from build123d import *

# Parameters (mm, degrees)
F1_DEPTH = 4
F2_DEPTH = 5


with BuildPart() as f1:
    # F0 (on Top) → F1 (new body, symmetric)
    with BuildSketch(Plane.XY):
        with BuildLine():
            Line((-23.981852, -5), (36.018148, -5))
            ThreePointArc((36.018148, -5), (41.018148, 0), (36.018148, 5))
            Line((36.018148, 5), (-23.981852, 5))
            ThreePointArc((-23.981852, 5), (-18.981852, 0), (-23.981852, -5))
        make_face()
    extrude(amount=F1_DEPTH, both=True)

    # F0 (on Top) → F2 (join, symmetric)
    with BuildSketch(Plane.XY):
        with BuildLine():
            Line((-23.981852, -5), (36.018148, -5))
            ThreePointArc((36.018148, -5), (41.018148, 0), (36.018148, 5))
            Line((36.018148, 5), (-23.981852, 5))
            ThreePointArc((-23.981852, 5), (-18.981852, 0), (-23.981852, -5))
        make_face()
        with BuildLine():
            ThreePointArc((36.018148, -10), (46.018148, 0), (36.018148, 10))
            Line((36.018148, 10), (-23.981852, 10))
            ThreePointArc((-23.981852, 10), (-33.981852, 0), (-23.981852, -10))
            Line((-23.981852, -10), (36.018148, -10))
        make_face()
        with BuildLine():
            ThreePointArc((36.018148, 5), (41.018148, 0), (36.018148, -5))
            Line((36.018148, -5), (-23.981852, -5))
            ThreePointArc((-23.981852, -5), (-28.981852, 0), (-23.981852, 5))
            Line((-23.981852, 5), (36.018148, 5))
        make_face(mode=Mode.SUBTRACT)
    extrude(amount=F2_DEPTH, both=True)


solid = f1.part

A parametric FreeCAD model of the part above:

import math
import FreeCAD as App
import Part
import Sketcher

doc = App.newDocument("Part")
body = doc.addObject("PartDesign::Body", "Body")

# Sketch on XY plane
sketch1 = body.newObject("Sketcher::SketchObject", "Sketch")
sketch1.AttachmentSupport = (doc.getObject("XY_Plane"), [""])
sketch1.MapMode = "FlatFace"
sketch1.addGeometry([
    Part.LineSegment(App.Vector(-24, -5, 0), App.Vector(36, -5, 0)),
    Part.ArcOfCircle(Part.Circle(App.Vector(36, 0, 0), App.Vector(0, 0, 1), 5), math.radians(-90), math.radians(90)),
    Part.LineSegment(App.Vector(36, 5, 0), App.Vector(-24, 5, 0)),
    Part.ArcOfCircle(Part.Circle(App.Vector(-24, 0, 0), App.Vector(0, 0, 1), 5), math.radians(-90), math.radians(90)),
], False)
sketch1.addConstraint([
    Sketcher.Constraint("Tangent", 0, 2, 1, 1),
    Sketcher.Constraint("Tangent", 1, 2, 2, 1),
    Sketcher.Constraint("Tangent", 2, 2, 3, 2),
    Sketcher.Constraint("Tangent", 3, 1, 0, 1),
    Sketcher.Constraint("Horizontal", 0),
    Sketcher.Constraint("Horizontal", 2),
    Sketcher.Constraint("PointOnObject", 1, 3, -1),
    Sketcher.Constraint("Radius", 1, 5.0),
    Sketcher.Constraint("DistanceX", 0, 1, 0, 2, 60.0),
    Sketcher.Constraint("DistanceX", 3, 3, -1, 1, 23.981852),
])
pad1 = body.newObject("PartDesign::Pad", "Pad")
pad1.Profile = sketch1
pad1.Length = 8
pad1.Midplane = True

# Sketch on XY plane
sketch2 = body.newObject("Sketcher::SketchObject", "Sketch001")
sketch2.AttachmentSupport = (doc.getObject("XY_Plane"), [""])
sketch2.MapMode = "FlatFace"
sketch2.addGeometry([
    Part.ArcOfCircle(Part.Circle(App.Vector(36, 0, 0), App.Vector(0, 0, 1), 10), math.radians(-90), math.radians(90)),  # 0
    Part.LineSegment(App.Vector(36, 10, 0), App.Vector(-24, 10, 0)),  # 1
    Part.ArcOfCircle(Part.Circle(App.Vector(-24, 0, 0), App.Vector(0, 0, 1), 10), math.radians(90), math.radians(270)),  # 2
    Part.LineSegment(App.Vector(-24, -10, 0), App.Vector(36, -10, 0)),  # 3
    Part.LineSegment(App.Vector(-24, 5, 0), App.Vector(36, 5, 0)),  # 4
    Part.ArcOfCircle(Part.Circle(App.Vector(36, 0, 0), App.Vector(0, 0, 1), 5), math.radians(-90), math.radians(90)),  # 5
    Part.LineSegment(App.Vector(36, -5, 0), App.Vector(-24, -5, 0)),  # 6
    Part.ArcOfCircle(Part.Circle(App.Vector(-24, 0, 0), App.Vector(0, 0, 1), 5), math.radians(90), math.radians(270)),  # 7
], False)
sketch2.addConstraint([
    Sketcher.Constraint("Tangent", 0, 2, 1, 1),
    Sketcher.Constraint("Tangent", 1, 2, 2, 1),
    Sketcher.Constraint("Tangent", 2, 2, 3, 1),
    Sketcher.Constraint("Tangent", 3, 2, 0, 1),
    Sketcher.Constraint("Tangent", 4, 2, 5, 2),
    Sketcher.Constraint("Tangent", 5, 1, 6, 1),
    Sketcher.Constraint("Tangent", 6, 2, 7, 2),
    Sketcher.Constraint("Tangent", 7, 1, 4, 1),
    Sketcher.Constraint("Horizontal", 1),
    Sketcher.Constraint("Horizontal", 3),
    Sketcher.Constraint("Horizontal", 4),
    Sketcher.Constraint("Horizontal", 6),
    Sketcher.Constraint("Coincident", 5, 3, 0, 3),
    Sketcher.Constraint("PointOnObject", 0, 3, -1),
    Sketcher.Constraint("Vertical", 7, 3, 1, 2),
    Sketcher.Constraint("Radius", 0, 10.0),
    Sketcher.Constraint("Radius", 5, 5.0),
    Sketcher.Constraint("DistanceX", 1, 2, 1, 1, 60.0),
    Sketcher.Constraint("DistanceX", 2, 3, -1, 1, 23.981852),
])
pad2 = body.newObject("PartDesign::Pad", "Pad001")
pad2.Profile = sketch2
pad2.Length = 10
pad2.Midplane = True

doc.recompute()
